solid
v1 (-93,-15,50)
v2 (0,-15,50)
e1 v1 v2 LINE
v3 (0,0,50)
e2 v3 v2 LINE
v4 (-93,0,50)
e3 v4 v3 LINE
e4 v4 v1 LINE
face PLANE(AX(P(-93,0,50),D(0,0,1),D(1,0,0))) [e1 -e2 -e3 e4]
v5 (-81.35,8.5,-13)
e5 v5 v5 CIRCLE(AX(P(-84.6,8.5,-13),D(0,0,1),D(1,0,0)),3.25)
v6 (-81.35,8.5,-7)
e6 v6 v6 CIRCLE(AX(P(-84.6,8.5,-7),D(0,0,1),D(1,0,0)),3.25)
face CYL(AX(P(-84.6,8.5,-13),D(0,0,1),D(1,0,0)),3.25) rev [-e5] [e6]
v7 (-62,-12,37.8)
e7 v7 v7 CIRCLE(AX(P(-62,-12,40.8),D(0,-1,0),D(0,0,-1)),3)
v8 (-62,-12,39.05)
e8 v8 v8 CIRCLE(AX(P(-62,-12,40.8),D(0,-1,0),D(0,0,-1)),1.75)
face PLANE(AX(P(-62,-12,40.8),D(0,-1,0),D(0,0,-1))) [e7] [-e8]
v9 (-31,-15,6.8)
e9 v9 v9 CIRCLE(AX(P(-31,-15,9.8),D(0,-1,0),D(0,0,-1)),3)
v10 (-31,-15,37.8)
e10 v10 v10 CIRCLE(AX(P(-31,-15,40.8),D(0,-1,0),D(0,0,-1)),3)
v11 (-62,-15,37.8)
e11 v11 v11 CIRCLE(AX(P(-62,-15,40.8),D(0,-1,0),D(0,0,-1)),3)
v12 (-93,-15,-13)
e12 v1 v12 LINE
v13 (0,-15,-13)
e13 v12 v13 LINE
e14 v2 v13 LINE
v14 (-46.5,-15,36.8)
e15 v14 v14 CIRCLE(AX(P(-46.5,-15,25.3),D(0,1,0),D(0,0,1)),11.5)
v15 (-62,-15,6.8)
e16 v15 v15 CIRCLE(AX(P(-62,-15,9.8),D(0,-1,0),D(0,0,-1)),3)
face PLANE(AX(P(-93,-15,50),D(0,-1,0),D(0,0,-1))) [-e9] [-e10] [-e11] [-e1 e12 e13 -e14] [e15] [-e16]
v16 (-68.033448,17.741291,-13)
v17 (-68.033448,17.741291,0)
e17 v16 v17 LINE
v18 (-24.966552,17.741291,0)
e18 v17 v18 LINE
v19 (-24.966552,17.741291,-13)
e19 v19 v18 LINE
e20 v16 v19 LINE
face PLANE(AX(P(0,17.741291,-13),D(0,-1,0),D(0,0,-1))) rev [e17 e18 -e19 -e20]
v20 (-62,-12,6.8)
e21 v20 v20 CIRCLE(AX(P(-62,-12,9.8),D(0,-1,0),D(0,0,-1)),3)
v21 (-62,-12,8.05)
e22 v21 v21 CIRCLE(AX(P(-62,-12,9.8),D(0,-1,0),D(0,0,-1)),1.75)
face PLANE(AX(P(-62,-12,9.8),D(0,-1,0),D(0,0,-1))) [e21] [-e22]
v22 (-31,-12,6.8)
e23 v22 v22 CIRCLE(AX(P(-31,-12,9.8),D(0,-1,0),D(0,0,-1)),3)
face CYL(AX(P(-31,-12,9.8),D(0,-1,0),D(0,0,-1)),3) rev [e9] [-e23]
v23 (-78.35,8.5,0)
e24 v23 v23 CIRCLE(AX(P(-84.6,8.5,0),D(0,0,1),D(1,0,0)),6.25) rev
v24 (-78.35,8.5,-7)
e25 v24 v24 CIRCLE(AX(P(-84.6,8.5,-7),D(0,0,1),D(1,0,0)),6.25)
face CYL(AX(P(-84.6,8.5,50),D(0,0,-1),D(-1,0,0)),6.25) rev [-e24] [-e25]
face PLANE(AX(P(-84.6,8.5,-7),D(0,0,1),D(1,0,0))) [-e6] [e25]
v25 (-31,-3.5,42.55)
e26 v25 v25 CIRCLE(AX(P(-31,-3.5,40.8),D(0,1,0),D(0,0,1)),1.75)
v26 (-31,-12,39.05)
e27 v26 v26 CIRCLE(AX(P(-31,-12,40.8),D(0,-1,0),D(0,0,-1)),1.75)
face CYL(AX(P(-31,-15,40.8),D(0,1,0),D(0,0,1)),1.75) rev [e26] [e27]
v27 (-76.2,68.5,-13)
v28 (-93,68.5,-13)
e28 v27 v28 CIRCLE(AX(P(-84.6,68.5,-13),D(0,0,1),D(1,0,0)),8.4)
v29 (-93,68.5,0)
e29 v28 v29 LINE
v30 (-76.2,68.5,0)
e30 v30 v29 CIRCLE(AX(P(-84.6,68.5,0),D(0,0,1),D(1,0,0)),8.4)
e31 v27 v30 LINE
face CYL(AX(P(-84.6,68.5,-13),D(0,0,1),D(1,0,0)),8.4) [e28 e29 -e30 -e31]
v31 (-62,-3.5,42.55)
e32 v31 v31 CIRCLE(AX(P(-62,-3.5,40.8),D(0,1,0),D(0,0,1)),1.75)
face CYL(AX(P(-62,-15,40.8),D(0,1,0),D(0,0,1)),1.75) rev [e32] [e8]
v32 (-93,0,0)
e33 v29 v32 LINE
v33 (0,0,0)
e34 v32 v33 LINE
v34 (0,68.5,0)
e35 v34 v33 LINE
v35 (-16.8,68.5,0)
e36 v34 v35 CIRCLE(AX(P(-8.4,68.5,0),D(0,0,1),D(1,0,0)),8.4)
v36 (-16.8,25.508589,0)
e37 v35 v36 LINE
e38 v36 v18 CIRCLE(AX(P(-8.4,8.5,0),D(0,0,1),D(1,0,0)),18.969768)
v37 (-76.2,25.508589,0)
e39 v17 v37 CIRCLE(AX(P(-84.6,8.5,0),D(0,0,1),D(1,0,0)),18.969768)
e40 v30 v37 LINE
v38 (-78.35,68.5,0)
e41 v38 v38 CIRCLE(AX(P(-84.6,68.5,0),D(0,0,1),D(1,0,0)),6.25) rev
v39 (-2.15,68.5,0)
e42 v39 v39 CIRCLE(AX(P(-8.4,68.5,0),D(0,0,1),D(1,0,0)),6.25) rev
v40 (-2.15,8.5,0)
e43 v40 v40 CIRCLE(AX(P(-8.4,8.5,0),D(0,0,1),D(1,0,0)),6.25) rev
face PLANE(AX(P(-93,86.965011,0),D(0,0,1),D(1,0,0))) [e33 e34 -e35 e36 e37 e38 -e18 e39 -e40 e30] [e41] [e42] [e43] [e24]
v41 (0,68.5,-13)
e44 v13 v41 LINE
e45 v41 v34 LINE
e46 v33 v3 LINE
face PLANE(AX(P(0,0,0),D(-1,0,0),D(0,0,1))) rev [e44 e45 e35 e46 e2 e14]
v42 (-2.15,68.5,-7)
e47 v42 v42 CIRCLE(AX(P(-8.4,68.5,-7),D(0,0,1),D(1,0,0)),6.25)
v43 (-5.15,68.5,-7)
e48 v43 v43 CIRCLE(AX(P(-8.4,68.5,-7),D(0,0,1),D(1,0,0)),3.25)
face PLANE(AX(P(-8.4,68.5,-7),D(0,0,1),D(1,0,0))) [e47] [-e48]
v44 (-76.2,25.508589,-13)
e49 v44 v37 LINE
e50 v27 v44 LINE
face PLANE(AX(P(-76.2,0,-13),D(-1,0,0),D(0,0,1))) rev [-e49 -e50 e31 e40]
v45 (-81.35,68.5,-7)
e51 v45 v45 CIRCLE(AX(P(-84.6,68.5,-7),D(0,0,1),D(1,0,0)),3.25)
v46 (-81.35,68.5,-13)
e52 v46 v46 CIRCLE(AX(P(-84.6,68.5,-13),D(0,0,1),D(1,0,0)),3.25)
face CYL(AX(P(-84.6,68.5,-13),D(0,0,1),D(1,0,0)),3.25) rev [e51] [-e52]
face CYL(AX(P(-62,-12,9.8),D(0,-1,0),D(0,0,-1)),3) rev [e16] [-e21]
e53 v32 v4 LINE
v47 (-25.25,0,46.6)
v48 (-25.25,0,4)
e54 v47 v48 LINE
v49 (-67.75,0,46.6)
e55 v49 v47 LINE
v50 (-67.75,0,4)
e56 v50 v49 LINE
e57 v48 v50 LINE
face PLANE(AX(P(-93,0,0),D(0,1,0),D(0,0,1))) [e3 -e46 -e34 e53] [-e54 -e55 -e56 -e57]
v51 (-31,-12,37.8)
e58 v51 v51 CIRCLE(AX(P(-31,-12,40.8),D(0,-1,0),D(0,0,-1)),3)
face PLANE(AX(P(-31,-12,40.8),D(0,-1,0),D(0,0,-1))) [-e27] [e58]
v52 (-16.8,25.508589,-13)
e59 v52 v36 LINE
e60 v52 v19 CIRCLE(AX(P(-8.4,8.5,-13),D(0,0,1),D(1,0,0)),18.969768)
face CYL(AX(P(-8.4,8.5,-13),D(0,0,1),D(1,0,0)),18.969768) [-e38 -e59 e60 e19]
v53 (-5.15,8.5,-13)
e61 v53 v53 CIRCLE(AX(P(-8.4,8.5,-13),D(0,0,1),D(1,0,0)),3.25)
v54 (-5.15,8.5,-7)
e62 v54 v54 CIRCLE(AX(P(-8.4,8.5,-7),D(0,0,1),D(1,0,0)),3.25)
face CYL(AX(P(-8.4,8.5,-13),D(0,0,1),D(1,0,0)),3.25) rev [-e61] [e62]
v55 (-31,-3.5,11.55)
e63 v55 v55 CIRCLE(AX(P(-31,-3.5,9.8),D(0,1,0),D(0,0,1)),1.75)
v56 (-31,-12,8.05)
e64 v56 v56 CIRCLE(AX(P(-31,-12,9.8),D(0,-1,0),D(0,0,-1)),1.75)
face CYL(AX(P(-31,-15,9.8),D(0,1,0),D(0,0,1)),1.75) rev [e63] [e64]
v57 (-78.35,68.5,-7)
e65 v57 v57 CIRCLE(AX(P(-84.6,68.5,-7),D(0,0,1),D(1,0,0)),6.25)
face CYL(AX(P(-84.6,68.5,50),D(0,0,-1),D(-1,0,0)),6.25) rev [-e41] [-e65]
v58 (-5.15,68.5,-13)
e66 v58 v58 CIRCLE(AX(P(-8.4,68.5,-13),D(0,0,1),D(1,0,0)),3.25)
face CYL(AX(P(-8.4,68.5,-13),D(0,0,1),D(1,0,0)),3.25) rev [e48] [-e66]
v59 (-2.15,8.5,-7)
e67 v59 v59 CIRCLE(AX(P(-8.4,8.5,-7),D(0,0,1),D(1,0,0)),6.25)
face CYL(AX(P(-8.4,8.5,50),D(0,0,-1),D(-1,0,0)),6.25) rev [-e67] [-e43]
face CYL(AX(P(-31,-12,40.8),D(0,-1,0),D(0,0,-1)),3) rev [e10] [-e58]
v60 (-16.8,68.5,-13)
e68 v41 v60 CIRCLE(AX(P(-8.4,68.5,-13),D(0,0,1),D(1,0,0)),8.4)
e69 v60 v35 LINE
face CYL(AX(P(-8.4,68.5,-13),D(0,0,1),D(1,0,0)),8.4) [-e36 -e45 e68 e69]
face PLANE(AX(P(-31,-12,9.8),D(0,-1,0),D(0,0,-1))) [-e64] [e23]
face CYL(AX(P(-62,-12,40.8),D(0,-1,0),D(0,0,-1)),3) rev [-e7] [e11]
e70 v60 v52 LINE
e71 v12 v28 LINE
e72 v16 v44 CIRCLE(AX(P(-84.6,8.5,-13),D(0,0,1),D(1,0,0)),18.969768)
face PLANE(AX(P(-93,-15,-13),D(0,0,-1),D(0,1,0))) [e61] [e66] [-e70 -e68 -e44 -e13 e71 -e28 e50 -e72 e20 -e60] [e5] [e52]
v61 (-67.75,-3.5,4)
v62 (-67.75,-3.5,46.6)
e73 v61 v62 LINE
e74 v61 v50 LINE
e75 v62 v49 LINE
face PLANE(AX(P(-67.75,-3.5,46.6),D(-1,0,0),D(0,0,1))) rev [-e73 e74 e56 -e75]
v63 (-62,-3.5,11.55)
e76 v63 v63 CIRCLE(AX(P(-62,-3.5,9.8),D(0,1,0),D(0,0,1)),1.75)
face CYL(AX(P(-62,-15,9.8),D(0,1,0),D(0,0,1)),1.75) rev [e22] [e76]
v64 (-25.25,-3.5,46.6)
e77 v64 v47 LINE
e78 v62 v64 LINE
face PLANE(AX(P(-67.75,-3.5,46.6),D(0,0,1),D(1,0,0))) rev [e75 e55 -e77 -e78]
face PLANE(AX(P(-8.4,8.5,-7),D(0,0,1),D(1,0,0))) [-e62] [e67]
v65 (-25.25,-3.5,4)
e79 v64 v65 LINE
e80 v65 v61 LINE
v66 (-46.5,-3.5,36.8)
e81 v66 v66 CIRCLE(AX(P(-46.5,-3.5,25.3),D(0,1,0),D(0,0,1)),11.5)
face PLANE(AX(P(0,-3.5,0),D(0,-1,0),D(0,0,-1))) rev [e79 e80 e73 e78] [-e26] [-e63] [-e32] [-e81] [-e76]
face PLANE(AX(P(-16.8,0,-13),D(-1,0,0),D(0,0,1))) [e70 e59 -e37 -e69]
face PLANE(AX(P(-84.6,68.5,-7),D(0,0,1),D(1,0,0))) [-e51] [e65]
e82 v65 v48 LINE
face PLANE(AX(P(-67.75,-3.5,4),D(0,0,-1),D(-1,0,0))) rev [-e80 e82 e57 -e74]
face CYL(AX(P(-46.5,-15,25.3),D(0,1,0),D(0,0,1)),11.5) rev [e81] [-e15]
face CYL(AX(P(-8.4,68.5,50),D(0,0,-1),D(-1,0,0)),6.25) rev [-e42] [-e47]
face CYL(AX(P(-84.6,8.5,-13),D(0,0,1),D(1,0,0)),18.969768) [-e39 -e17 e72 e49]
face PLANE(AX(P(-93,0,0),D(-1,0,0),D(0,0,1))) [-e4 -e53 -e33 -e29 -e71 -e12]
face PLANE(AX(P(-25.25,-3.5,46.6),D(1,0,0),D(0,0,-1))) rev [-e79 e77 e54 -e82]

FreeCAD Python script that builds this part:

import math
import FreeCAD as App
import Part
import Sketcher

V = App.Vector
Q = App.Units.Quantity

doc = App.newDocument("Part")
body = doc.addObject("PartDesign::Body", "Body")

sketch1 = doc.addObject("Sketcher::SketchObject", "Sketch")
body.addObject(sketch1)
sketch1.AttachmentSupport = (doc.YZ_Plane, [""])
sketch1.MapMode = "FlatFace"
sketch1.addGeometry([
    Part.LineSegment(V(0, 0, 0), V(0, 50, 0)),
    Part.LineSegment(V(0, 50, 0), V(-15, 50, 0)),
    Part.LineSegment(V(-15, 50, 0), V(-15, -13, 0)),
    Part.LineSegment(V(-15, -13, 0), V(87, -13, 0)),
    Part.LineSegment(V(87, -13, 0), V(87, 0, 0)),
    Part.LineSegment(V(87, 0, 0), V(0, 0, 0)),
], False)
sketch1.addConstraint([
    Sketcher.Constraint("Coincident", 0, 2, 1, 1),
    Sketcher.Constraint("Coincident", 1, 2, 2, 1),
    Sketcher.Constraint("Coincident", 2, 2, 3, 1),
    Sketcher.Constraint("Coincident", 3, 2, 4, 1),
    Sketcher.Constraint("Coincident", 4, 2, 5, 1),
    Sketcher.Constraint("Coincident", 5, 2, 0, 1),
    Sketcher.Constraint("Vertical", 0),
    Sketcher.Constraint("Horizontal", 1),
    Sketcher.Constraint("Vertical", 2),
    Sketcher.Constraint("Horizontal", 3),
    Sketcher.Constraint("Vertical", 4),
    Sketcher.Constraint("Horizontal", 5),
    Sketcher.Constraint("Coincident", 5, 2, -1, 1),
    Sketcher.Constraint("DistanceX", 1, 2, 1, 1, Q("15 mm")),
    Sketcher.Constraint("DistanceY", 0, 1, 0, 2, Q("50 mm")),
    Sketcher.Constraint("DistanceY", 2, 2, 2, 1, Q("63 mm")),
    Sketcher.Constraint("DistanceX", 3, 1, 3, 2, Q("101.965011 mm")),
])
pad1 = doc.addObject("PartDesign::Pad", "Pad")
body.addObject(pad1)
pad1.Profile = sketch1
pad1.Length = 93
pad1.Reversed = True

sketch2 = doc.addObject("Sketcher::SketchObject", "Sketch001")
body.addObject(sketch2)
sketch2.AttachmentSupport = (doc.XZ_Plane, [""])
sketch2.MapMode = "FlatFace"
sketch2.addGeometry([
    Part.LineSegment(V(-68, 4, 0), V(-68, 47, 0)),
    Part.LineSegment(V(-68, 47, 0), V(-25, 47, 0)),
    Part.LineSegment(V(-25, 47, 0), V(-25, 4, 0)),
    Part.LineSegment(V(-25, 4, 0), V(-68, 4, 0)),
], False)
sketch2.addConstraint([
    Sketcher.Constraint("Coincident", 0, 2, 1, 1),
    Sketcher.Constraint("Coincident", 1, 2, 2, 1),
    Sketcher.Constraint("Coincident", 2, 2, 3, 1),
    Sketcher.Constraint("Coincident", 3, 2, 0, 1),
    Sketcher.Constraint("Vertical", 0),
    Sketcher.Constraint("Horizontal", 1),
    Sketcher.Constraint("Vertical", 2),
    Sketcher.Constraint("Horizontal", 3),
    Sketcher.Constraint("DistanceX", 1, 1, 1, 2, Q("42.5 mm")),
    Sketcher.Constraint("DistanceY", 0, 1, 0, 2, Q("42.6 mm")),
    Sketcher.Constraint("DistanceY", -1, 1, 2, 2, Q("4 mm")),
    Sketcher.Constraint("DistanceX", 0, 2, -1, 1, Q("67.75 mm")),
])
pocket1 = doc.addObject("PartDesign::Pocket", "Pocket")
body.addObject(pocket1)
pocket1.Profile = sketch2
pocket1.Length = 3.5
pocket1.Reversed = True

sketch3 = doc.addObject("Sketcher::SketchObject", "Sketch002")
body.addObject(sketch3)
sketch3.AttachmentSupport = (doc.XZ_Plane, [""])
sketch3.MapMode = "FlatFace"
sketch3.AttachmentOffset = App.Placement(V(0, 0, 3.5), App.Rotation())
sketch3.addGeometry(Part.Circle(V(-46, 25, 0), V(0, 0, 1), 12), False)
sketch3.addConstraint([
    Sketcher.Constraint("Diameter", 0, Q("23 mm")),
    Sketcher.Constraint("DistanceX", 0, 3, -1, 1, Q("46.5 mm")),
    Sketcher.Constraint("DistanceY", -1, 1, 0, 3, Q("25.3 mm")),
])
pocket2 = doc.addObject("PartDesign::Pocket", "Pocket001")
body.addObject(pocket2)
pocket2.Profile = sketch3
pocket2.Type = "ThroughAll"
pocket2.Reversed = True

sketch4 = doc.addObject("Sketcher::SketchObject", "Sketch003")
body.addObject(sketch4)
sketch4.AttachmentSupport = (doc.XZ_Plane, [""])
sketch4.MapMode = "FlatFace"
sketch4.AttachmentOffset = App.Placement(V(0, 0, 3.5), App.Rotation())
sketch4.addGeometry([
    Part.Circle(V(-62, 9.8, 0), V(0, 0, 1), 1.8),
    Part.Circle(V(-31, 9.8, 0), V(0, 0, 1), 1.8),
    Part.Circle(V(-31, 40.8, 0), V(0, 0, 1), 1.8),
    Part.Circle(V(-62, 40.8, 0), V(0, 0, 1), 1.8),
], False)
sketch4.addConstraint([
    Sketcher.Constraint("Equal", 0, 1),
    Sketcher.Constraint("Equal", 1, 2),
    Sketcher.Constraint("Equal", 2, 3),
    Sketcher.Constraint("Horizontal", 0, 3, 1, 3),
    Sketcher.Constraint("Horizontal", 2, 3, 3, 3),
    Sketcher.Constraint("Vertical", 1, 3, 2, 3),
    Sketcher.Constraint("Vertical", 0, 3, 3, 3),
    Sketcher.Constraint("Diameter", 0, Q("3.5 mm")),
    Sketcher.Constraint("DistanceX", 0, 3, -1, 1, Q("62 mm")),
    Sketcher.Constraint("DistanceX", 1, 3, -1, 1, Q("31 mm")),
    Sketcher.Constraint("DistanceY", 1, 3, 2, 3, Q("31 mm")),
    Sketcher.Constraint("DistanceY", -1, 1, 0, 3, Q("9.8 mm")),
])
pocket3 = doc.addObject("PartDesign::Pocket", "Pocket002")
body.addObject(pocket3)
pocket3.Profile = sketch4
pocket3.Type = "ThroughAll"
pocket3.Reversed = True

sketch5 = doc.addObject("Sketcher::SketchObject", "Sketch004")
body.addObject(sketch5)
sketch5.AttachmentSupport = (doc.XZ_Plane, [""])
sketch5.MapMode = "FlatFace"
sketch5.AttachmentOffset = App.Placement(V(0, 0, 15), App.Rotation())
sketch5.addGeometry([
    Part.Circle(V(-62, 9.8, 0), V(0, 0, 1), 3),
    Part.Circle(V(-62, 9.8, 0), V(0, 0, 1), 1.8),
    Part.Circle(V(-31, 9.8, 0), V(0, 0, 1), 3),
    Part.Circle(V(-31, 9.8, 0), V(0, 0, 1), 1.8),
    Part.Circle(V(-31, 40.8, 0), V(0, 0, 1), 3),
    Part.Circle(V(-31, 40.8, 0), V(0, 0, 1), 1.8),
    Part.Circle(V(-62, 40.8, 0), V(0, 0, 1), 3),
    Part.Circle(V(-62, 40.8, 0), V(0, 0, 1), 1.8),
], False)
sketch5.addConstraint([
    Sketcher.Constraint("Coincident", 1, 3, 0, 3),
    Sketcher.Constraint("Coincident", 3, 3, 2, 3),
    Sketcher.Constraint("Coincident", 5, 3, 4, 3),
    Sketcher.Constraint("Coincident", 7, 3, 6, 3),
    Sketcher.Constraint("Equal", 0, 2),
    Sketcher.Constraint("Equal", 1, 3),
    Sketcher.Constraint("Equal", 2, 4),
    Sketcher.Constraint("Equal", 3, 5),
    Sketcher.Constraint("Equal", 4, 6),
    Sketcher.Constraint("Equal", 5, 7),
    Sketcher.Constraint("Horizontal", 1, 3, 2, 3),
    Sketcher.Constraint("Horizontal", 5, 3, 6, 3),
    Sketcher.Constraint("Vertical", 3, 3, 4, 3),
    Sketcher.Constraint("Vertical", 1, 3, 6, 3),
    Sketcher.Constraint("Diameter", 0, Q("6 mm")),
    Sketcher.Constraint("Diameter", 1, Q("3.5 mm")),
    Sketcher.Constraint("DistanceX", 0, 3, -1, 1, Q("62 mm")),
    Sketcher.Constraint("DistanceX", 2, 3, -1, 1, Q("31 mm")),
    Sketcher.Constraint("DistanceY", 2, 3, 4, 3, Q("31 mm")),
    Sketcher.Constraint("DistanceY", -1, 1, 0, 3, Q("9.8 mm")),
])
pocket4 = doc.addObject("PartDesign::Pocket", "Pocket003")
body.addObject(pocket4)
pocket4.Profile = sketch5
pocket4.Length = 3

sketch6 = doc.addObject("Sketcher::SketchObject", "Sketch005")
body.addObject(sketch6)
sketch6.AttachmentSupport = (doc.XY_Plane, [""])
sketch6.MapMode = "FlatFace"
sketch6.addGeometry([
    Part.Circle(V(-84.6, 68.5, 0), V(0, 0, 1), 3.2),
    Part.Circle(V(-8.4, 68.5, 0), V(0, 0, 1), 3.2),
    Part.Circle(V(-8.4, 8.5, 0), V(0, 0, 1), 3.2),
    Part.Circle(V(-84.6, 8.5, 0), V(0, 0, 1), 3.2),
], False)
sketch6.addConstraint([
    Sketcher.Constraint("Equal", 0, 1),
    Sketcher.Constraint("Equal", 1, 2),
    Sketcher.Constraint("Equal", 2, 3),
    Sketcher.Constraint("Horizontal", 0, 3, 1, 3),
    Sketcher.Constraint("Horizontal", 2, 3, 3, 3),
    Sketcher.Constraint("Vertical", 1, 3, 2, 3),
    Sketcher.Constraint("Vertical", 0, 3, 3, 3),
    Sketcher.Constraint("Diameter", 0, Q("6.5 mm")),
    Sketcher.Constraint("DistanceY", 2, 3, 1, 3, Q("60 mm")),
    Sketcher.Constraint("DistanceX", 0, 3, -1, 1, Q("84.6 mm")),
    Sketcher.Constraint("DistanceY", -1, 1, 0, 3, Q("68.5 mm")),
    Sketcher.Constraint("DistanceX", 1, 3, -1, 1, Q("8.4 mm")),
])
pocket5 = doc.addObject("PartDesign::Pocket", "Pocket004")
body.addObject(pocket5)
pocket5.Profile = sketch6
pocket5.Type = "ThroughAll"
pocket5.Midplane = True

sketch7 = doc.addObject("Sketcher::SketchObject", "Sketch006")
body.addObject(sketch7)
sketch7.AttachmentSupport = (doc.XY_Plane, [""])
sketch7.MapMode = "FlatFace"
sketch7.addGeometry([
    Part.Circle(V(-84.6, 68.5, 0), V(0, 0, 1), 6.2),
    Part.Circle(V(-84.6, 68.5, 0), V(0, 0, 1), 3.2),
    Part.Circle(V(-84.6, 8.5, 0), V(0, 0, 1), 6.2),
    Part.Circle(V(-84.6, 8.5, 0), V(0, 0, 1), 3.2),
    Part.Circle(V(-8.4, 8.5, 0), V(0, 0, 1), 6.2),
    Part.Circle(V(-8.4, 8.5, 0), V(0, 0, 1), 3.2),
    Part.Circle(V(-8.4, 68.5, 0), V(0, 0, 1), 6.2),
    Part.Circle(V(-8.4, 68.5, 0), V(0, 0, 1), 3.2),
], False)
sketch7.addConstraint([
    Sketcher.Constraint("Coincident", 1, 3, 0, 3),
    Sketcher.Constraint("Coincident", 3, 3, 2, 3),
    Sketcher.Constraint("Coincident", 5, 3, 4, 3),
    Sketcher.Constraint("Coincident", 7, 3, 6, 3),
    Sketcher.Constraint("Equal", 0, 2),
    Sketcher.Constraint("Equal", 1, 3),
    Sketcher.Constraint("Equal", 2, 4),
    Sketcher.Constraint("Equal", 3, 5),
    Sketcher.Constraint("Equal", 4, 6),
    Sketcher.Constraint("Equal", 5, 7),
    Sketcher.Constraint("Horizontal", 3, 3, 4, 3),
    Sketcher.Constraint("Horizontal", 1, 3, 6, 3),
    Sketcher.Constraint("Vertical", 1, 3, 2, 3),
    Sketcher.Constraint("Vertical", 5, 3, 6, 3),
    Sketcher.Constraint("Diameter", 0, Q("12.5 mm")),
    Sketcher.Constraint("Diameter", 1, Q("6.5 mm")),
    Sketcher.Constraint("DistanceY", 2, 3, 0, 3, Q("60 mm")),
    Sketcher.Constraint("DistanceX", 0, 3, -1, 1, Q("84.6 mm")),
    Sketcher.Constraint("DistanceY", -1, 1, 0, 3, Q("68.5 mm")),
    Sketcher.Constraint("DistanceX", 4, 3, -1, 1, Q("8.4 mm")),
])
pocket6 = doc.addObject("PartDesign::Pocket", "Pocket005")
body.addObject(pocket6)
pocket6.Profile = sketch7
pocket6.Type = "TwoLengths"
pocket6.Length = 51
pocket6.Length2 = 7
pocket6.Reversed = True

sketch8 = doc.addObject("Sketcher::SketchObject", "Sketch007")
body.addObject(sketch8)
sketch8.AttachmentSupport = (doc.XY_Plane, [""])
sketch8.MapMode = "FlatFace"
sketch8.addGeometry([
    Part.LineSegment(V(-93, 87, 0), V(-93, 68, 0)),
    Part.ArcOfCircle(Part.Circle(V(-85, 68, 0), V(0, 0, 1), 8), math.radians(0), math.radians(180)),
    Part.LineSegment(V(-76, 68, 0), V(-76, 26, 0)),
    Part.ArcOfCircle(Part.Circle(V(-85, 9, 0), V(0, 0, 1), 19), math.radians(29), math.radians(64)),
    Part.LineSegment(V(-68, 18, 0), V(-25, 18, 0)),
    Part.ArcOfCircle(Part.Circle(V(-8, 9, 0), V(0, 0, 1), 19), math.radians(116), math.radians(151)),
    Part.LineSegment(V(-17, 26, 0), V(-17, 68, 0)),
    Part.ArcOfCircle(Part.Circle(V(-8, 68, 0), V(0, 0, 1), 8), math.radians(0), math.radians(180)),
    Part.LineSegment(V(0, 68, 0), V(0, 87, 0)),
    Part.LineSegment(V(0, 87, 0), V(-93, 87, 0)),
], False)
sketch8.addConstraint([
    Sketcher.Constraint("Tangent", 0, 2, 1, 2),
    Sketcher.Constraint("Tangent", 1, 1, 2, 1),
    Sketcher.Constraint("Coincident", 2, 2, 3, 2),
    Sketcher.Constraint("Coincident", 3, 1, 4, 1),
    Sketcher.Constraint("Coincident", 4, 2, 5, 2),
    Sketcher.Constraint("Coincident", 5, 1, 6, 1),
    Sketcher.Constraint("Tangent", 6, 2, 7, 2),
    Sketcher.Constraint("Tangent", 7, 1, 8, 1),
    Sketcher.Constraint("Coincident", 8, 2, 9, 1),
    Sketcher.Constraint("Coincident", 9, 2, 0, 1),
    Sketcher.Constraint("Vertical", 0),
    Sketcher.Constraint("Vertical", 2),
    Sketcher.Constraint("Horizontal", 4),
    Sketcher.Constraint("Vertical", 6),
    Sketcher.Constraint("Vertical", 8),
    Sketcher.Constraint("Horizontal", 9),
    Sketcher.Constraint("Equal", 3, 5),
    Sketcher.Constraint("Equal", 1, 7),
    Sketcher.Constraint("PointOnObject", 7, 1, -2),
    Sketcher.Constraint("Horizontal", 3, 3, 5, 3),
    Sketcher.Constraint("Horizontal", 1, 3, 7, 3),
    Sketcher.Constraint("Horizontal", 2, 2, 5, 1),
    Sketcher.Constraint("Vertical", 1, 3, 3, 3),
    Sketcher.Constraint("Radius", 1, Q("8.4 mm")),
    Sketcher.Constraint("DistanceX", 9, 2, 9, 1, Q("93 mm")),
    Sketcher.Constraint("DistanceY", 3, 3, 1, 3, Q("60 mm")),
    Sketcher.Constraint("DistanceY", -1, 1, 1, 3, Q("68.5 mm")),
    Sketcher.Constraint("Radius", 3, Q("18.969768 mm")),
    Sketcher.Constraint("DistanceY", 0, 2, 0, 1, Q("18.465011 mm")),
    Sketcher.Constraint("DistanceY", 3, 1, 2, 2, Q("7.767298 mm")),
])
pocket7 = doc.addObject("PartDesign::Pocket", "Pocket006")
body.addObject(pocket7)
pocket7.Profile = sketch8
pocket7.Type = "ThroughAll"

doc.recompute()
